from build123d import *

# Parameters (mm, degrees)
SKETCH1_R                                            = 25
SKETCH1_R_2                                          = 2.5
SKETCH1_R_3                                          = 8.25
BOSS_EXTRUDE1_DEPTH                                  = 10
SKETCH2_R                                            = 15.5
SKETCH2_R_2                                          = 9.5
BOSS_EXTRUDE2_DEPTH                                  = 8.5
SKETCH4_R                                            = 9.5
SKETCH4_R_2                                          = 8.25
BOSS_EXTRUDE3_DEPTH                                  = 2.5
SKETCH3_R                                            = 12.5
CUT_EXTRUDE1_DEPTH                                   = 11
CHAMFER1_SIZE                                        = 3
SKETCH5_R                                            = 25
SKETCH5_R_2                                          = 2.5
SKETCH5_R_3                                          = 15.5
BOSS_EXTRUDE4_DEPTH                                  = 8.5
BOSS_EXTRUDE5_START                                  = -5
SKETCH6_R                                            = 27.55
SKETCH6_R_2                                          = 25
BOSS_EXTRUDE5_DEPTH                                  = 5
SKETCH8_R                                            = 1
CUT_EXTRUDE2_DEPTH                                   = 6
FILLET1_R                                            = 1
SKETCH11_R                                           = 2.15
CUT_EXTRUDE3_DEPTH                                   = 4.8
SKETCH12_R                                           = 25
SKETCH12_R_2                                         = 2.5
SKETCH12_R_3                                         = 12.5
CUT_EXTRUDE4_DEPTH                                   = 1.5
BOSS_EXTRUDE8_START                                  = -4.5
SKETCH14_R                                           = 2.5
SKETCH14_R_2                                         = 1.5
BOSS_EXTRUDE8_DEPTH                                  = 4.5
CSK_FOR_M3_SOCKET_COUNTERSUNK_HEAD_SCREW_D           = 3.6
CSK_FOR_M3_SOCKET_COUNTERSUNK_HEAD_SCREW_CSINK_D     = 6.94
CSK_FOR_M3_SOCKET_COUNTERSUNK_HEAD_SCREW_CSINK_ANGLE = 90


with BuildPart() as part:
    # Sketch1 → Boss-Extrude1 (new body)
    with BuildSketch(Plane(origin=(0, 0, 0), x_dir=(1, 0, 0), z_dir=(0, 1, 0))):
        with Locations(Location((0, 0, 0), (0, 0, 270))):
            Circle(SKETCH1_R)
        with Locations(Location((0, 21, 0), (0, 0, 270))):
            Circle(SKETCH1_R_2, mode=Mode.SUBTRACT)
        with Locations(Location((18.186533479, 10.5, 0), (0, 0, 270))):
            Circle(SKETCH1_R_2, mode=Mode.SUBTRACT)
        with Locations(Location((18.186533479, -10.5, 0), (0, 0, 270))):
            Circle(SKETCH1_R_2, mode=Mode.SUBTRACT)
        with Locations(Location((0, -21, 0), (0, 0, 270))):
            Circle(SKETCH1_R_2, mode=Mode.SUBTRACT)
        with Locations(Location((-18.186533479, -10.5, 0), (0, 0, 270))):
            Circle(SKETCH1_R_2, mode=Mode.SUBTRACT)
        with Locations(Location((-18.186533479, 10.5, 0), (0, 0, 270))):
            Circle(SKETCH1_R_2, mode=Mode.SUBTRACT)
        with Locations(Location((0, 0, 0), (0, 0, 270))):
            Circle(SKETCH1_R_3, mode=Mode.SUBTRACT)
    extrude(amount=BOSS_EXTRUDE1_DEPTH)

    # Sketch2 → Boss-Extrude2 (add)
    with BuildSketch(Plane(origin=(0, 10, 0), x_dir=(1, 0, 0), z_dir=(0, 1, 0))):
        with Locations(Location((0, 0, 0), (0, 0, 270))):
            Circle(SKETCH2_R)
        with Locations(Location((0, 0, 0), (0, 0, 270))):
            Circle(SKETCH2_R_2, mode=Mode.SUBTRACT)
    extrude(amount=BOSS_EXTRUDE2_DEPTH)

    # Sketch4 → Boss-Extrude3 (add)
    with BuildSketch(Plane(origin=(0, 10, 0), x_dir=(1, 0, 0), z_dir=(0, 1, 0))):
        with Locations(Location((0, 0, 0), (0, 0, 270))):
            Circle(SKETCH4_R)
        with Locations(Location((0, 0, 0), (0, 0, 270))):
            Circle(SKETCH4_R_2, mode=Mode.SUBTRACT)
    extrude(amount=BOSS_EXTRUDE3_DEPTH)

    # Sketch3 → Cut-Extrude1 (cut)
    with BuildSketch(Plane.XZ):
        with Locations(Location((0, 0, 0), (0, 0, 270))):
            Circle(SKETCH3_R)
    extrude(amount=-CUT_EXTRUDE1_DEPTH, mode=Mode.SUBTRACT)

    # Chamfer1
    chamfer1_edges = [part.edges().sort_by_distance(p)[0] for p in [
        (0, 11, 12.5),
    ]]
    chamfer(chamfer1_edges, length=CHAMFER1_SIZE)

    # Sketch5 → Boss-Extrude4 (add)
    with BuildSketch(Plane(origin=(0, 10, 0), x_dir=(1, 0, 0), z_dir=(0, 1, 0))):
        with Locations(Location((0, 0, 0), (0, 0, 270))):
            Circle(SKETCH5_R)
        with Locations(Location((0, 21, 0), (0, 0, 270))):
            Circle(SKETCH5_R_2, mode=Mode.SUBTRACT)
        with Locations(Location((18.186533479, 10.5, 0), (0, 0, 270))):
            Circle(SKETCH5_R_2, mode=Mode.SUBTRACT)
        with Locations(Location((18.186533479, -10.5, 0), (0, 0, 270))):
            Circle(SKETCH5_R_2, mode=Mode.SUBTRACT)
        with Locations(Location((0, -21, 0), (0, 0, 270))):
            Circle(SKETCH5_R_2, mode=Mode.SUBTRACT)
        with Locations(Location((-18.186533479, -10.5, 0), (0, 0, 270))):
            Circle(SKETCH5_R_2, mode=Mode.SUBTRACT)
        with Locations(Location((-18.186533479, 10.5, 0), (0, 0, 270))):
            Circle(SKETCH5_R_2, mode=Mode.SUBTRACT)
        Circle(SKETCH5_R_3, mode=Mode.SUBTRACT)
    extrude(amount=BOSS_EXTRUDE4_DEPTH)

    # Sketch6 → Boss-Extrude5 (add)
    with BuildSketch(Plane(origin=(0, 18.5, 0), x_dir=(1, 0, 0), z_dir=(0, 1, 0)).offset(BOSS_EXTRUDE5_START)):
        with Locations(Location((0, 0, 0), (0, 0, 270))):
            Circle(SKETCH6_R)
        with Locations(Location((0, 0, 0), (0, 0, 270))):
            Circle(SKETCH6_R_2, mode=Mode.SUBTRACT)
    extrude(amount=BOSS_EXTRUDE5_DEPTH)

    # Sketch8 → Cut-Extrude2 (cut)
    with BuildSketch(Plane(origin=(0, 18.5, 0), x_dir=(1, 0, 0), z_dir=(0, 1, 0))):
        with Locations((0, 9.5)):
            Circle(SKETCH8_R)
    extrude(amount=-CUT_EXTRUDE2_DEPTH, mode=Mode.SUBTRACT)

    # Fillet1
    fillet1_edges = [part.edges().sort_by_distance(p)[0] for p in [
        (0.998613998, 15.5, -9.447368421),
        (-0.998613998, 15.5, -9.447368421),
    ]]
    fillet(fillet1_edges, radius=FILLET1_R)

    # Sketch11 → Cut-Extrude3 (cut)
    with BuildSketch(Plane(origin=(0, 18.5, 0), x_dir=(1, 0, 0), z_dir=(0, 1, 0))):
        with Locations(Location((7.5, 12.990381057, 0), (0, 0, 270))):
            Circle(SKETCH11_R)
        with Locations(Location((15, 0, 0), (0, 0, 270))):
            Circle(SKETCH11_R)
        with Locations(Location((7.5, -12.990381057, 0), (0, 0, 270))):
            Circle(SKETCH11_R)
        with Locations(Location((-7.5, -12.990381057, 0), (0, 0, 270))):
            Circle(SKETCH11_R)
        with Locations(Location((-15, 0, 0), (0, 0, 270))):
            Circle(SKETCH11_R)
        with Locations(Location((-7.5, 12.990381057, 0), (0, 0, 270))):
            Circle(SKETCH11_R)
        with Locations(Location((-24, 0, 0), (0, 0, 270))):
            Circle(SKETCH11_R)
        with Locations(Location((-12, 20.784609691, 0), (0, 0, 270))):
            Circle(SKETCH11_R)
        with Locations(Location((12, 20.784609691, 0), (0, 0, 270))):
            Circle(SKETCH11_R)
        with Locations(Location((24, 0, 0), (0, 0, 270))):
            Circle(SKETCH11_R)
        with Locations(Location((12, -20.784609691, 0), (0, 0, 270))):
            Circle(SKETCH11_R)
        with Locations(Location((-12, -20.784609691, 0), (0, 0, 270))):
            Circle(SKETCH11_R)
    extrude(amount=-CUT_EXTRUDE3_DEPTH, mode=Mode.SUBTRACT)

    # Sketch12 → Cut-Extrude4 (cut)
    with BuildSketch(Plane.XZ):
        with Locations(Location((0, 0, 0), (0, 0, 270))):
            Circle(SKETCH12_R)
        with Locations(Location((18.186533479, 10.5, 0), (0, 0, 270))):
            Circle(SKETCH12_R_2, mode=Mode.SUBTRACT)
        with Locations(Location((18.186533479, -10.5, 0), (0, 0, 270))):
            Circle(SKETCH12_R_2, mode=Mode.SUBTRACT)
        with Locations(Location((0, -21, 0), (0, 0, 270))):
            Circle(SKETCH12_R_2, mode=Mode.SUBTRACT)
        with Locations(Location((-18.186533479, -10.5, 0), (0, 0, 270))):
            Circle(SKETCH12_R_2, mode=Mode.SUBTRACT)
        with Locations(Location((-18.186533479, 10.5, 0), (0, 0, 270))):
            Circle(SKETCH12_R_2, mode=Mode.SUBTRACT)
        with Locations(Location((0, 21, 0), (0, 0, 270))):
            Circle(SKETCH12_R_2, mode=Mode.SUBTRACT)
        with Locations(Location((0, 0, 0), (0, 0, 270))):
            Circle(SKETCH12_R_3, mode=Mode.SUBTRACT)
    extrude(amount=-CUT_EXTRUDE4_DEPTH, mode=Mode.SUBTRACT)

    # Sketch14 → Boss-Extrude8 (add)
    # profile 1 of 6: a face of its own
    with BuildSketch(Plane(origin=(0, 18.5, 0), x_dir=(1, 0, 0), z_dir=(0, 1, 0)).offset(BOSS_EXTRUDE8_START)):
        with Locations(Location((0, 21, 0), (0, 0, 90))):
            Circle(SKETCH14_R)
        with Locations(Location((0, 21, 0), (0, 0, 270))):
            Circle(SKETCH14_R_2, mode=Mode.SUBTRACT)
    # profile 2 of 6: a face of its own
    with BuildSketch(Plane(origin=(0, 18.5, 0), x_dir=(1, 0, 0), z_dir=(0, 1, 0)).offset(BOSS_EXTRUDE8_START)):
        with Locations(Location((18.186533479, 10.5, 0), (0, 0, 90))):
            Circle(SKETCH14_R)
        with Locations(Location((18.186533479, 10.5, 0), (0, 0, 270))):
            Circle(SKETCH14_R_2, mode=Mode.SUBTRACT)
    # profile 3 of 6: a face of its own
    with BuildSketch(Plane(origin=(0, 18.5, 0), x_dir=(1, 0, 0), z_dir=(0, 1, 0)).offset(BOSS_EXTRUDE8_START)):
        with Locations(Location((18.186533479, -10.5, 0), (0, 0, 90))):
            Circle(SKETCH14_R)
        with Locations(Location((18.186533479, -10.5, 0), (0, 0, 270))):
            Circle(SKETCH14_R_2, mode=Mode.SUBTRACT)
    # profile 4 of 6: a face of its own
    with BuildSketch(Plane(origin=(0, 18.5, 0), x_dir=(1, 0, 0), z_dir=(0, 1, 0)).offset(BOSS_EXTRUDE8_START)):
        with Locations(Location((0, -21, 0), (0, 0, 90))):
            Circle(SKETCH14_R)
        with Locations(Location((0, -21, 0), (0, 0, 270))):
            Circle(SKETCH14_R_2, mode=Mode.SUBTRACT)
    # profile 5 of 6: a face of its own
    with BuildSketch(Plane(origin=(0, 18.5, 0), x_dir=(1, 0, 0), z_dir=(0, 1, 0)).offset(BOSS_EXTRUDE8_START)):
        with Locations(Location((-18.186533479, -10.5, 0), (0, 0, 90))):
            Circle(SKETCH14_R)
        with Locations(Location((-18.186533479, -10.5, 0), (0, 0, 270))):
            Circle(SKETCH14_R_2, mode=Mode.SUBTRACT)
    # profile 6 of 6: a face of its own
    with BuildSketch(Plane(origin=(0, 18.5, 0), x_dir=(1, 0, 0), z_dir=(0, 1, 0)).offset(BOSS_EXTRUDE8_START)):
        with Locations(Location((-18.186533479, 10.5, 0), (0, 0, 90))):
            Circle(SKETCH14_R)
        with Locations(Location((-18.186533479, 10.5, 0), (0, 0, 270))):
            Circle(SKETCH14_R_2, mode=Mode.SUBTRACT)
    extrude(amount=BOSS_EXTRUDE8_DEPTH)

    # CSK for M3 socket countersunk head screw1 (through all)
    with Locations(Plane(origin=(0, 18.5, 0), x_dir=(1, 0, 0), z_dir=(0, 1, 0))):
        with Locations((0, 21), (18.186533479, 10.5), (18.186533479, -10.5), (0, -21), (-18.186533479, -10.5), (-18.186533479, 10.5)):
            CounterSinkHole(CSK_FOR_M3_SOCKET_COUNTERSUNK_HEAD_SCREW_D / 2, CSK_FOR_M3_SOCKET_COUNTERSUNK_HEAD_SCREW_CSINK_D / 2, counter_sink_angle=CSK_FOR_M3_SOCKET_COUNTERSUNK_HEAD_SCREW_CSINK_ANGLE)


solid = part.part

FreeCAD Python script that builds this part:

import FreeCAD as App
import Part
import Sketcher
from FreeCAD import Vector
Q = App.Units.Quantity


def edges_at(feature, points):
    """Names of the edges that pass closest to the given points."""
    edges = feature.Shape.Edges
    near = lambda p: min(range(len(edges)), key=lambda i: edges[i].distToShape(Part.Vertex(*p))[0])
    return sorted({f"Edge{near(p) + 1}" for p in points})

doc = App.newDocument("Part")
params = doc.addObject("Spreadsheet::Sheet", "Params")
for row, (alias, value) in enumerate([
    ("sketch1_diameter", "50 mm"),
    ("sketch1_diameter2", "5 mm"),
    ("sketch1_diameter3", "16.5 mm"),
    ("pad1_length", "10 mm"),
    ("sketch2_diameter", "31 mm"),
    ("sketch2_diameter2", "19 mm"),
    ("pad2_length", "8.5 mm"),
    ("sketch3_diameter", "19 mm"),
    ("sketch3_diameter2", "16.5 mm"),
    ("pad3_length", "2.5 mm"),
    ("sketch4_diameter", "25 mm"),
    ("pocket1_length", "11 mm"),
    ("chamfer_size", "3 mm"),
    ("sketch5_diameter", "50 mm"),
    ("sketch5_diameter2", "5 mm"),
    ("sketch5_diameter3", "31 mm"),
    ("pad4_length", "8.5 mm"),
    ("sketch6_diameter", "50 mm"),
    ("sketch6_diameter2", "55.1 mm"),
    ("pad5_length", "5 mm"),
    ("sketch7_diameter", "2 mm"),
    ("pocket2_length", "6 mm"),
    ("fillet_radius", "1 mm"),
    ("sketch8_diameter", "4.3 mm"),
    ("pocket3_length", "4.8 mm"),
    ("sketch9_diameter", "50 mm"),
    ("sketch9_diameter2", "5 mm"),
    ("sketch9_diameter3", "25 mm"),
    ("pocket4_length", "1.5 mm"),
    ("sketch10_diameter", "5 mm"),
    ("sketch10_diameter2", "3 mm"),
    ("pad6_length", "4.5 mm"),
    ("sketch11_diameter", "3.6 mm"),
    ("hole_diameter", "3.6 mm"),
    ("hole_csink_diameter", "6.94 mm"),
], start=1):
    params.set(f"A{row}", alias)
    params.set(f"B{row}", "=" + value)
    params.setAlias(f"B{row}", alias)

body = doc.addObject("PartDesign::Body", "Body")

# Sketch on XZ plane
sketch1 = body.newObject("Sketcher::SketchObject", "Sketch")
sketch1.AttachmentSupport = (doc.getObject("XZ_Plane"), [""])
sketch1.MapMode = "FlatFace"
sketch1.addGeometry([
    Part.Circle(Vector(0, 0, 0), Vector(0, 0, 1), 25),  # 0
    Part.Circle(Vector(-18.2, -10.5, 0), Vector(0, 0, 1), 2.5),  # 1
    Part.Circle(Vector(0, -21, 0), Vector(0, 0, 1), 2.5),  # 2
    Part.Circle(Vector(-18.2, 10.5, 0), Vector(0, 0, 1), 2.5),  # 3
    Part.Circle(Vector(18.2, -10.5, 0), Vector(0, 0, 1), 2.5),  # 4
    Part.Circle(Vector(0, 0, 0), Vector(0, 0, 1), 8.2),  # 5
    Part.Circle(Vector(0, 21, 0), Vector(0, 0, 1), 2.5),  # 6
    Part.Circle(Vector(18.2, 10.5, 0), Vector(0, 0, 1), 2.5),  # 7
], False)
sketch1.addConstraint([
    Sketcher.Constraint("Coincident", 0, 3, -1, 1),
    Sketcher.Constraint("Coincident", 5, 3, -1, 1),
    Sketcher.Constraint("Equal", 1, 2),
    Sketcher.Constraint("Equal", 2, 3),
    Sketcher.Constraint("Equal", 3, 4),
    Sketcher.Constraint("Equal", 4, 6),
    Sketcher.Constraint("Equal", 6, 7),
    Sketcher.Constraint("Symmetric", 3, 3, 4, 3, -1, 1),
    Sketcher.Constraint("Symmetric", 2, 3, 6, 3, -1, 1),
    Sketcher.Constraint("Symmetric", 1, 3, 7, 3, -1, 1),
    Sketcher.Constraint("Symmetric", 1, 3, 4, 3, -2),
    Sketcher.Constraint("PointOnObject", 2, 3, -2),
    Sketcher.Constraint("Diameter", 0, Q("50 mm")),
    Sketcher.Constraint("Diameter", 1, Q("5 mm")),
    Sketcher.Constraint("Diameter", 5, Q("16.5 mm")),
    Sketcher.Constraint("DistanceY", 2, 3, -1, 1, Q("21 mm")),
    Sketcher.Constraint("DistanceY", 1, 3, 3, 3, Q("21 mm")),
    Sketcher.Constraint("DistanceX", 1, 3, -1, 1, Q("18.186533 mm")),
])
sketch1.setExpression("Constraints[12]", "Params.sketch1_diameter")
sketch1.setExpression("Constraints[13]", "Params.sketch1_diameter2")
sketch1.setExpression("Constraints[14]", "Params.sketch1_diameter3")
pad1 = body.newObject("PartDesign::Pad", "Pad")
pad1.Profile = sketch1
pad1.setExpression("Length", "Params.pad1_length")
pad1.Reversed = True

# Sketch on XZ plane
sketch2 = body.newObject("Sketcher::SketchObject", "Sketch001")
sketch2.AttachmentSupport = (doc.getObject("XZ_Plane"), [""])
sketch2.MapMode = "FlatFace"
sketch2.AttachmentOffset = App.Placement(Vector(0, 0, -10), App.Rotation())
sketch2.addGeometry([
    Part.Circle(Vector(0, 0, 0), Vector(0, 0, 1), 16),
    Part.Circle(Vector(0, 0, 0), Vector(0, 0, 1), 10),
], False)
sketch2.addConstraint([
    Sketcher.Constraint("Coincident", 0, 3, -1, 1),
    Sketcher.Constraint("Coincident", 1, 3, -1, 1),
    Sketcher.Constraint("Diameter", 0, Q("31 mm")),
    Sketcher.Constraint("Diameter", 1, Q("19 mm")),
])
sketch2.setExpression("Constraints[2]", "Params.sketch2_diameter")
sketch2.setExpression("Constraints[3]", "Params.sketch2_diameter2")
pad2 = body.newObject("PartDesign::Pad", "Pad001")
pad2.Profile = sketch2
pad2.setExpression("Length", "Params.pad2_length")
pad2.Reversed = True

# Sketch on XZ plane
sketch3 = body.newObject("Sketcher::SketchObject", "Sketch002")
sketch3.AttachmentSupport = (doc.getObject("XZ_Plane"), [""])
sketch3.MapMode = "FlatFace"
sketch3.AttachmentOffset = App.Placement(Vector(0, 0, -10), App.Rotation())
sketch3.addGeometry([
    Part.Circle(Vector(0, 0, 0), Vector(0, 0, 1), 10),
    Part.Circle(Vector(0, 0, 0), Vector(0, 0, 1), 8),
], False)
sketch3.addConstraint([
    Sketcher.Constraint("Coincident", 0, 3, -1, 1),
    Sketcher.Constraint("Coincident", 1, 3, -1, 1),
    Sketcher.Constraint("Diameter", 0, Q("19 mm")),
    Sketcher.Constraint("Diameter", 1, Q("16.5 mm")),
])
sketch3.setExpression("Constraints[2]", "Params.sketch3_diameter")
sketch3.setExpression("Constraints[3]", "Params.sketch3_diameter2")
pad3 = body.newObject("PartDesign::Pad", "Pad002")
pad3.Profile = sketch3
pad3.setExpression("Length", "Params.pad3_length")
pad3.Reversed = True

# Sketch on XZ plane
sketch4 = body.newObject("Sketcher::SketchObject", "Sketch003")
sketch4.AttachmentSupport = (doc.getObject("XZ_Plane"), [""])
sketch4.MapMode = "FlatFace"
sketch4.addGeometry(Part.Circle(Vector(0, 0, 0), Vector(0, 0, 1), 12), False)
sketch4.addConstraint([
    Sketcher.Constraint("Coincident", 0, 3, -1, 1),
    Sketcher.Constraint("Diameter", 0, Q("25 mm")),
])
sketch4.setExpression("Constraints[1]", "Params.sketch4_diameter")
pocket1 = body.newObject("PartDesign::Pocket", "Pocket")
pocket1.Profile = sketch4
pocket1.setExpression("Length", "Params.pocket1_length")
doc.recompute()

chamfer = body.newObject("PartDesign::Chamfer", "Chamfer")
chamfer.Base = (pocket1, edges_at(pocket1, [(0, 11, 12.5)]))
chamfer.setExpression("Size", "Params.chamfer_size")

# Sketch on XZ plane
sketch5 = body.newObject("Sketcher::SketchObject", "Sketch004")
sketch5.AttachmentSupport = (doc.getObject("XZ_Plane"), [""])
sketch5.MapMode = "FlatFace"
sketch5.AttachmentOffset = App.Placement(Vector(0, 0, -10), App.Rotation())
sketch5.addGeometry([
    Part.Circle(Vector(0, 0, 0), Vector(0, 0, 1), 25),  # 0
    Part.Circle(Vector(-18.2, -10.5, 0), Vector(0, 0, 1), 2.5),  # 1
    Part.Circle(Vector(0, -21, 0), Vector(0, 0, 1), 2.5),  # 2
    Part.Circle(Vector(-18.2, 10.5, 0), Vector(0, 0, 1), 2.5),  # 3
    Part.Circle(Vector(18.2, -10.5, 0), Vector(0, 0, 1), 2.5),  # 4
    Part.Circle(Vector(0, 0, 0), Vector(0, 0, 1), 15.5),  # 5
    Part.Circle(Vector(0, 21, 0), Vector(0, 0, 1), 2.5),  # 6
    Part.Circle(Vector(18.2, 10.5, 0), Vector(0, 0, 1), 2.5),  # 7
], False)
sketch5.addConstraint([
    Sketcher.Constraint("Coincident", 0, 3, -1, 1),
    Sketcher.Constraint("Coincident", 5, 3, -1, 1),
    Sketcher.Constraint("Equal", 1, 2),
    Sketcher.Constraint("Equal", 2, 3),
    Sketcher.Constraint("Equal", 3, 4),
    Sketcher.Constraint("Equal", 4, 6),
    Sketcher.Constraint("Equal", 6, 7),
    Sketcher.Constraint("Symmetric", 3, 3, 4, 3, -1, 1),
    Sketcher.Constraint("Symmetric", 2, 3, 6, 3, -1, 1),
    Sketcher.Constraint("Symmetric", 1, 3, 7, 3, -1, 1),
    Sketcher.Constraint("Symmetric", 1, 3, 4, 3, -2),
    Sketcher.Constraint("PointOnObject", 2, 3, -2),
    Sketcher.Constraint("Diameter", 0, Q("50 mm")),
    Sketcher.Constraint("Diameter", 1, Q("5 mm")),
    Sketcher.Constraint("Diameter", 5, Q("31 mm")),
    Sketcher.Constraint("DistanceY", 2, 3, -1, 1, Q("21 mm")),
    Sketcher.Constraint("DistanceY", 1, 3, 3, 3, Q("21 mm")),
    Sketcher.Constraint("DistanceX", 1, 3, -1, 1, Q("18.186533 mm")),
])
sketch5.setExpression("Constraints[12]", "Params.sketch5_diameter")
sketch5.setExpression("Constraints[13]", "Params.sketch5_diameter2")
sketch5.setExpression("Constraints[14]", "Params.sketch5_diameter3")
pad4 = body.newObject("PartDesign::Pad", "Pad003")
pad4.Profile = sketch5
pad4.setExpression("Length", "Params.pad4_length")
pad4.Reversed = True

# Sketch on XZ plane
sketch6 = body.newObject("Sketcher::SketchObject", "Sketch005")
sketch6.AttachmentSupport = (doc.getObject("XZ_Plane"), [""])
sketch6.MapMode = "FlatFace"
sketch6.AttachmentOffset = App.Placement(Vector(0, 0, -13.5), App.Rotation())
sketch6.addGeometry([
    Part.Circle(Vector(0, 0, 0), Vector(0, 0, 1), 28),
    Part.Circle(Vector(0, 0, 0), Vector(0, 0, 1), 25),
], False)
sketch6.addConstraint([
    Sketcher.Constraint("Coincident", 0, 3, -1, 1),
    Sketcher.Constraint("Coincident", 1, 3, -1, 1),
    Sketcher.Constraint("Diameter", 1, Q("50 mm")),
    Sketcher.Constraint("Diameter", 0, Q("55.1 mm")),
])
sketch6.setExpression("Constraints[2]", "Params.sketch6_diameter")
sketch6.setExpression("Constraints[3]", "Params.sketch6_diameter2")
pad5 = body.newObject("PartDesign::Pad", "Pad004")
pad5.Profile = sketch6
pad5.setExpression("Length", "Params.pad5_length")
pad5.Reversed = True

# Sketch on XZ plane
sketch7 = body.newObject("Sketcher::SketchObject", "Sketch006")
sketch7.AttachmentSupport = (doc.getObject("XZ_Plane"), [""])
sketch7.MapMode = "FlatFace"
sketch7.AttachmentOffset = App.Placement(Vector(0, 0, -18.5), App.Rotation())
sketch7.addGeometry(Part.Circle(Vector(0, -9.5, 0), Vector(0, 0, 1), 1), False)
sketch7.addConstraint([
    Sketcher.Constraint("PointOnObject", 0, 3, -2),
    Sketcher.Constraint("Diameter", 0, Q("2 mm")),
    Sketcher.Constraint("DistanceY", 0, 3, -1, 1, Q("9.5 mm")),
])
sketch7.setExpression("Constraints[1]", "Params.sketch7_diameter")
pocket2 = body.newObject("PartDesign::Pocket", "Pocket001")
pocket2.Profile = sketch7
pocket2.setExpression("Length", "Params.pocket2_length")
pocket2.Reversed = True
doc.recompute()

fillet = body.newObject("PartDesign::Fillet", "Fillet")
fillet.Base = (pocket2, edges_at(pocket2, [(0.999, 15.5, -9.447), (-0.999, 15.5, -9.447)]))
fillet.setExpression("Radius", "Params.fillet_radius")

# Sketch on XZ plane
sketch8 = body.newObject("Sketcher::SketchObject", "Sketch007")
sketch8.AttachmentSupport = (doc.getObject("XZ_Plane"), [""])
sketch8.MapMode = "FlatFace"
sketch8.AttachmentOffset = App.Placement(Vector(0, 0, -18.5), App.Rotation())
sketch8.addGeometry([
    Part.Circle(Vector(7.5, -13, 0), Vector(0, 0, 1), 2.1),  # 0
    Part.Circle(Vector(15, 0, 0), Vector(0, 0, 1), 2.1),  # 1
    Part.Circle(Vector(7.5, 13, 0), Vector(0, 0, 1), 2.1),  # 2
    Part.Circle(Vector(-7.5, 13, 0), Vector(0, 0, 1), 2.1),  # 3
    Part.Circle(Vector(-15, 0, 0), Vector(0, 0, 1), 2.1),  # 4
    Part.Circle(Vector(-7.5, -13, 0), Vector(0, 0, 1), 2.1),  # 5
    Part.Circle(Vector(-24, 0, 0), Vector(0, 0, 1), 2.1),  # 6
    Part.Circle(Vector(-12, -20.8, 0), Vector(0, 0, 1), 2.1),  # 7
    Part.Circle(Vector(12, -20.8, 0), Vector(0, 0, 1), 2.1),  # 8
    Part.Circle(Vector(24, 0, 0), Vector(0, 0, 1), 2.1),  # 9
    Part.Circle(Vector(12, 20.8, 0), Vector(0, 0, 1), 2.1),  # 10
    Part.Circle(Vector(-12, 20.8, 0), Vector(0, 0, 1), 2.1),  # 11
], False)
sketch8.addConstraint([
    Sketcher.Constraint("Equal", 0, 1),
    Sketcher.Constraint("Equal", 1, 2),
    Sketcher.Constraint("Equal", 2, 3),
    Sketcher.Constraint("Equal", 3, 4),
    Sketcher.Constraint("Equal", 4, 5),
    Sketcher.Constraint("Equal", 5, 6),
    Sketcher.Constraint("Equal", 6, 7),
    Sketcher.Constraint("Equal", 7, 8),
    Sketcher.Constraint("Equal", 8, 9),
    Sketcher.Constraint("Equal", 9, 10),
    Sketcher.Constraint("Equal", 10, 11),
    Sketcher.Constraint("Symmetric", 0, 3, 3, 3, -1, 1),
    Sketcher.Constraint("Symmetric", 1, 3, 4, 3, -1, 1),
    Sketcher.Constraint("Symmetric", 2, 3, 5, 3, -1, 1),
    Sketcher.Constraint("Symmetric", 6, 3, 9, 3, -1, 1),
    Sketcher.Constraint("Symmetric", 7, 3, 10, 3, -1, 1),
    Sketcher.Constraint("Symmetric", 8, 3, 11, 3, -1, 1),
    Sketcher.Constraint("Symmetric", 2, 3, 3, 3, -2),
    Sketcher.Constraint("Symmetric", 7, 3, 8, 3, -2),
    Sketcher.Constraint("PointOnObject", 1, 3, -1),
    Sketcher.Constraint("PointOnObject", 6, 3, -1),
    Sketcher.Constraint("Diameter", 0, Q("4.3 mm")),
    Sketcher.Constraint("DistanceX", -1, 1, 1, 3, Q("15 mm")),
    Sketcher.Constraint("DistanceX", 6, 3, -1, 1, Q("24 mm")),
    Sketcher.Constraint("DistanceX", 7, 3, -1, 1, Q("12 mm")),
    Sketcher.Constraint("DistanceX", 3, 3, 2, 3, Q("15 mm")),
    Sketcher.Constraint("DistanceY", 0, 3, -1, 1, Q("12.990381 mm")),
    Sketcher.Constraint("DistanceY", 7, 3, -1, 1, Q("20.78461 mm")),
])
sketch8.setExpression("Constraints[21]", "Params.sketch8_diameter")
pocket3 = body.newObject("PartDesign::Pocket", "Pocket002")
pocket3.Profile = sketch8
pocket3.setExpression("Length", "Params.pocket3_length")
pocket3.Reversed = True

# Sketch on XZ plane
sketch9 = body.newObject("Sketcher::SketchObject", "Sketch008")
sketch9.AttachmentSupport = (doc.getObject("XZ_Plane"), [""])
sketch9.MapMode = "FlatFace"
sketch9.addGeometry([
    Part.Circle(Vector(0, 0, 0), Vector(0, 0, 1), 25),  # 0
    Part.Circle(Vector(-18.2, 10.5, 0), Vector(0, 0, 1), 2.5),  # 1
    Part.Circle(Vector(0, 21, 0), Vector(0, 0, 1), 2.5),  # 2
    Part.Circle(Vector(-18.2, -10.5, 0), Vector(0, 0, 1), 2.5),  # 3
    Part.Circle(Vector(18.2, 10.5, 0), Vector(0, 0, 1), 2.5),  # 4
    Part.Circle(Vector(0, 0, 0), Vector(0, 0, 1), 12.5),  # 5
    Part.Circle(Vector(0, -21, 0), Vector(0, 0, 1), 2.5),  # 6
    Part.Circle(Vector(18.2, -10.5, 0), Vector(0, 0, 1), 2.5),  # 7
], False)
sketch9.addConstraint([
    Sketcher.Constraint("Coincident", 0, 3, -1, 1),
    Sketcher.Constraint("Coincident", 5, 3, -1, 1),
    Sketcher.Constraint("Equal", 1, 2),
    Sketcher.Constraint("Equal", 2, 3),
    Sketcher.Constraint("Equal", 3, 4),
    Sketcher.Constraint("Equal", 4, 6),
    Sketcher.Constraint("Equal", 6, 7),
    Sketcher.Constraint("Symmetric", 3, 3, 4, 3, -1, 1),
    Sketcher.Constraint("Symmetric", 2, 3, 6, 3, -1, 1),
    Sketcher.Constraint("Symmetric", 1, 3, 7, 3, -1, 1),
    Sketcher.Constraint("Symmetric", 1, 3, 4, 3, -2),
    Sketcher.Constraint("PointOnObject", 2, 3, -2),
    Sketcher.Constraint("Diameter", 0, Q("50 mm")),
    Sketcher.Constraint("Diameter", 1, Q("5 mm")),
    Sketcher.Constraint("Diameter", 5, Q("25 mm")),
    Sketcher.Constraint("DistanceY", -1, 1, 2, 3, Q("21 mm")),
    Sketcher.Constraint("DistanceY", 3, 3, 1, 3, Q("21 mm")),
    Sketcher.Constraint("DistanceX", 1, 3, -1, 1, Q("18.186533 mm")),
])
sketch9.setExpression("Constraints[12]", "Params.sketch9_diameter")
sketch9.setExpression("Constraints[13]", "Params.sketch9_diameter2")
sketch9.setExpression("Constraints[14]", "Params.sketch9_diameter3")
pocket4 = body.newObject("PartDesign::Pocket", "Pocket003")
pocket4.Profile = sketch9
pocket4.setExpression("Length", "Params.pocket4_length")

# Sketch on XZ plane
sketch10 = body.newObject("Sketcher::SketchObject", "Sketch009")
sketch10.AttachmentSupport = (doc.getObject("XZ_Plane"), [""])
sketch10.MapMode = "FlatFace"
sketch10.AttachmentOffset = App.Placement(Vector(0, 0, -14), App.Rotation())
sketch10.addGeometry([
    Part.Circle(Vector(0, -21, 0), Vector(0, 0, 1), 2.5),  # 0
    Part.Circle(Vector(0, -21, 0), Vector(0, 0, 1), 1.5),  # 1
    Part.Circle(Vector(18.2, -10.5, 0), Vector(0, 0, 1), 2.5),  # 2
    Part.Circle(Vector(18.2, -10.5, 0), Vector(0, 0, 1), 1.5),  # 3
    Part.Circle(Vector(18.2, 10.5, 0), Vector(0, 0, 1), 2.5),  # 4
    Part.Circle(Vector(18.2, 10.5, 0), Vector(0, 0, 1), 1.5),  # 5
    Part.Circle(Vector(0, 21, 0), Vector(0, 0, 1), 2.5),  # 6
    Part.Circle(Vector(0, 21, 0), Vector(0, 0, 1), 1.5),  # 7
    Part.Circle(Vector(-18.2, 10.5, 0), Vector(0, 0, 1), 2.5),  # 8
    Part.Circle(Vector(-18.2, 10.5, 0), Vector(0, 0, 1), 1.5),  # 9
    Part.Circle(Vector(-18.2, -10.5, 0), Vector(0, 0, 1), 2.5),  # 10
    Part.Circle(Vector(-18.2, -10.5, 0), Vector(0, 0, 1), 1.5),  # 11
], False)
sketch10.addConstraint([
    Sketcher.Constraint("Coincident", 1, 3, 0, 3),
    Sketcher.Constraint("Coincident", 3, 3, 2, 3),
    Sketcher.Constraint("Coincident", 5, 3, 4, 3),
    Sketcher.Constraint("Coincident", 7, 3, 6, 3),
    Sketcher.Constraint("Coincident", 9, 3, 8, 3),
    Sketcher.Constraint("Coincident", 11, 3, 10, 3),
    Sketcher.Constraint("Equal", 0, 2),
    Sketcher.Constraint("Equal", 1, 3),
    Sketcher.Constraint("Equal", 2, 4),
    Sketcher.Constraint("Equal", 3, 5),
    Sketcher.Constraint("Equal", 4, 6),
    Sketcher.Constraint("Equal", 5, 7),
    Sketcher.Constraint("Equal", 6, 8),
    Sketcher.Constraint("Equal", 7, 9),
    Sketcher.Constraint("Equal", 8, 10),
    Sketcher.Constraint("Equal", 9, 11),
    Sketcher.Constraint("Symmetric", 0, 3, 6, 3, -1, 1),
    Sketcher.Constraint("Symmetric", 2, 3, 8, 3, -1, 1),
    Sketcher.Constraint("Symmetric", 4, 3, 10, 3, -1, 1),
    Sketcher.Constraint("Symmetric", 4, 3, 8, 3, -2),
    Sketcher.Constraint("PointOnObject", 0, 3, -2),
    Sketcher.Constraint("Diameter", 0, Q("5 mm")),
    Sketcher.Constraint("Diameter", 1, Q("3 mm")),
    Sketcher.Constraint("DistanceY", 0, 3, -1, 1, Q("21 mm")),
    Sketcher.Constraint("DistanceY", 2, 3, 4, 3, Q("21 mm")),
    Sketcher.Constraint("DistanceX", -1, 1, 2, 3, Q("18.186533 mm")),
])
sketch10.setExpression("Constraints[21]", "Params.sketch10_diameter")
sketch10.setExpression("Constraints[22]", "Params.sketch10_diameter2")
pad6 = body.newObject("PartDesign::Pad", "Pad005")
pad6.Profile = sketch10
pad6.setExpression("Length", "Params.pad6_length")
pad6.Reversed = True

# Sketch on XZ plane
sketch11 = body.newObject("Sketcher::SketchObject", "Sketch010")
sketch11.AttachmentSupport = (doc.getObject("XZ_Plane"), [""])
sketch11.MapMode = "FlatFace"
sketch11.AttachmentOffset = App.Placement(Vector(0, 0, -18.5), App.Rotation())
sketch11.addGeometry([
    Part.Circle(Vector(0, -21, 0), Vector(0, 0, 1), 1.8),  # 0
    Part.Circle(Vector(18.2, -10.5, 0), Vector(0, 0, 1), 1.8),  # 1
    Part.Circle(Vector(18.2, 10.5, 0), Vector(0, 0, 1), 1.8),  # 2
    Part.Circle(Vector(0, 21, 0), Vector(0, 0, 1), 1.8),  # 3
    Part.Circle(Vector(-18.2, 10.5, 0), Vector(0, 0, 1), 1.8),  # 4
    Part.Circle(Vector(-18.2, -10.5, 0), Vector(0, 0, 1), 1.8),  # 5
], False)
sketch11.addConstraint([
    Sketcher.Constraint("Equal", 0, 1),
    Sketcher.Constraint("Equal", 1, 2),
    Sketcher.Constraint("Equal", 2, 3),
    Sketcher.Constraint("Equal", 3, 4),
    Sketcher.Constraint("Equal", 4, 5),
    Sketcher.Constraint("Symmetric", 0, 3, 3, 3, -1, 1),
    Sketcher.Constraint("Symmetric", 1, 3, 4, 3, -1, 1),
    Sketcher.Constraint("Symmetric", 2, 3, 5, 3, -1, 1),
    Sketcher.Constraint("Symmetric", 2, 3, 4, 3, -2),
    Sketcher.Constraint("PointOnObject", 0, 3, -2),
    Sketcher.Constraint("Diameter", 0, Q("3.6 mm")),
    Sketcher.Constraint("DistanceY", 0, 3, -1, 1, Q("21 mm")),
    Sketcher.Constraint("DistanceY", 1, 3, 2, 3, Q("21 mm")),
    Sketcher.Constraint("DistanceX", -1, 1, 1, 3, Q("18.186533 mm")),
])
sketch11.setExpression("Constraints[10]", "Params.sketch11_diameter")
doc.recompute()
hole = body.newObject("PartDesign::Hole", "Hole")
hole.Profile = sketch11
hole.ThreadType = "None"
hole.setExpression("Diameter", "Params.hole_diameter")
hole.DepthType = "ThroughAll"
hole.HoleCutType = "Countersink"
hole.setExpression("HoleCutDiameter", "Params.hole_csink_diameter")
hole.HoleCutCountersinkAngle = 90
hole.Reversed = True

doc.recompute()
